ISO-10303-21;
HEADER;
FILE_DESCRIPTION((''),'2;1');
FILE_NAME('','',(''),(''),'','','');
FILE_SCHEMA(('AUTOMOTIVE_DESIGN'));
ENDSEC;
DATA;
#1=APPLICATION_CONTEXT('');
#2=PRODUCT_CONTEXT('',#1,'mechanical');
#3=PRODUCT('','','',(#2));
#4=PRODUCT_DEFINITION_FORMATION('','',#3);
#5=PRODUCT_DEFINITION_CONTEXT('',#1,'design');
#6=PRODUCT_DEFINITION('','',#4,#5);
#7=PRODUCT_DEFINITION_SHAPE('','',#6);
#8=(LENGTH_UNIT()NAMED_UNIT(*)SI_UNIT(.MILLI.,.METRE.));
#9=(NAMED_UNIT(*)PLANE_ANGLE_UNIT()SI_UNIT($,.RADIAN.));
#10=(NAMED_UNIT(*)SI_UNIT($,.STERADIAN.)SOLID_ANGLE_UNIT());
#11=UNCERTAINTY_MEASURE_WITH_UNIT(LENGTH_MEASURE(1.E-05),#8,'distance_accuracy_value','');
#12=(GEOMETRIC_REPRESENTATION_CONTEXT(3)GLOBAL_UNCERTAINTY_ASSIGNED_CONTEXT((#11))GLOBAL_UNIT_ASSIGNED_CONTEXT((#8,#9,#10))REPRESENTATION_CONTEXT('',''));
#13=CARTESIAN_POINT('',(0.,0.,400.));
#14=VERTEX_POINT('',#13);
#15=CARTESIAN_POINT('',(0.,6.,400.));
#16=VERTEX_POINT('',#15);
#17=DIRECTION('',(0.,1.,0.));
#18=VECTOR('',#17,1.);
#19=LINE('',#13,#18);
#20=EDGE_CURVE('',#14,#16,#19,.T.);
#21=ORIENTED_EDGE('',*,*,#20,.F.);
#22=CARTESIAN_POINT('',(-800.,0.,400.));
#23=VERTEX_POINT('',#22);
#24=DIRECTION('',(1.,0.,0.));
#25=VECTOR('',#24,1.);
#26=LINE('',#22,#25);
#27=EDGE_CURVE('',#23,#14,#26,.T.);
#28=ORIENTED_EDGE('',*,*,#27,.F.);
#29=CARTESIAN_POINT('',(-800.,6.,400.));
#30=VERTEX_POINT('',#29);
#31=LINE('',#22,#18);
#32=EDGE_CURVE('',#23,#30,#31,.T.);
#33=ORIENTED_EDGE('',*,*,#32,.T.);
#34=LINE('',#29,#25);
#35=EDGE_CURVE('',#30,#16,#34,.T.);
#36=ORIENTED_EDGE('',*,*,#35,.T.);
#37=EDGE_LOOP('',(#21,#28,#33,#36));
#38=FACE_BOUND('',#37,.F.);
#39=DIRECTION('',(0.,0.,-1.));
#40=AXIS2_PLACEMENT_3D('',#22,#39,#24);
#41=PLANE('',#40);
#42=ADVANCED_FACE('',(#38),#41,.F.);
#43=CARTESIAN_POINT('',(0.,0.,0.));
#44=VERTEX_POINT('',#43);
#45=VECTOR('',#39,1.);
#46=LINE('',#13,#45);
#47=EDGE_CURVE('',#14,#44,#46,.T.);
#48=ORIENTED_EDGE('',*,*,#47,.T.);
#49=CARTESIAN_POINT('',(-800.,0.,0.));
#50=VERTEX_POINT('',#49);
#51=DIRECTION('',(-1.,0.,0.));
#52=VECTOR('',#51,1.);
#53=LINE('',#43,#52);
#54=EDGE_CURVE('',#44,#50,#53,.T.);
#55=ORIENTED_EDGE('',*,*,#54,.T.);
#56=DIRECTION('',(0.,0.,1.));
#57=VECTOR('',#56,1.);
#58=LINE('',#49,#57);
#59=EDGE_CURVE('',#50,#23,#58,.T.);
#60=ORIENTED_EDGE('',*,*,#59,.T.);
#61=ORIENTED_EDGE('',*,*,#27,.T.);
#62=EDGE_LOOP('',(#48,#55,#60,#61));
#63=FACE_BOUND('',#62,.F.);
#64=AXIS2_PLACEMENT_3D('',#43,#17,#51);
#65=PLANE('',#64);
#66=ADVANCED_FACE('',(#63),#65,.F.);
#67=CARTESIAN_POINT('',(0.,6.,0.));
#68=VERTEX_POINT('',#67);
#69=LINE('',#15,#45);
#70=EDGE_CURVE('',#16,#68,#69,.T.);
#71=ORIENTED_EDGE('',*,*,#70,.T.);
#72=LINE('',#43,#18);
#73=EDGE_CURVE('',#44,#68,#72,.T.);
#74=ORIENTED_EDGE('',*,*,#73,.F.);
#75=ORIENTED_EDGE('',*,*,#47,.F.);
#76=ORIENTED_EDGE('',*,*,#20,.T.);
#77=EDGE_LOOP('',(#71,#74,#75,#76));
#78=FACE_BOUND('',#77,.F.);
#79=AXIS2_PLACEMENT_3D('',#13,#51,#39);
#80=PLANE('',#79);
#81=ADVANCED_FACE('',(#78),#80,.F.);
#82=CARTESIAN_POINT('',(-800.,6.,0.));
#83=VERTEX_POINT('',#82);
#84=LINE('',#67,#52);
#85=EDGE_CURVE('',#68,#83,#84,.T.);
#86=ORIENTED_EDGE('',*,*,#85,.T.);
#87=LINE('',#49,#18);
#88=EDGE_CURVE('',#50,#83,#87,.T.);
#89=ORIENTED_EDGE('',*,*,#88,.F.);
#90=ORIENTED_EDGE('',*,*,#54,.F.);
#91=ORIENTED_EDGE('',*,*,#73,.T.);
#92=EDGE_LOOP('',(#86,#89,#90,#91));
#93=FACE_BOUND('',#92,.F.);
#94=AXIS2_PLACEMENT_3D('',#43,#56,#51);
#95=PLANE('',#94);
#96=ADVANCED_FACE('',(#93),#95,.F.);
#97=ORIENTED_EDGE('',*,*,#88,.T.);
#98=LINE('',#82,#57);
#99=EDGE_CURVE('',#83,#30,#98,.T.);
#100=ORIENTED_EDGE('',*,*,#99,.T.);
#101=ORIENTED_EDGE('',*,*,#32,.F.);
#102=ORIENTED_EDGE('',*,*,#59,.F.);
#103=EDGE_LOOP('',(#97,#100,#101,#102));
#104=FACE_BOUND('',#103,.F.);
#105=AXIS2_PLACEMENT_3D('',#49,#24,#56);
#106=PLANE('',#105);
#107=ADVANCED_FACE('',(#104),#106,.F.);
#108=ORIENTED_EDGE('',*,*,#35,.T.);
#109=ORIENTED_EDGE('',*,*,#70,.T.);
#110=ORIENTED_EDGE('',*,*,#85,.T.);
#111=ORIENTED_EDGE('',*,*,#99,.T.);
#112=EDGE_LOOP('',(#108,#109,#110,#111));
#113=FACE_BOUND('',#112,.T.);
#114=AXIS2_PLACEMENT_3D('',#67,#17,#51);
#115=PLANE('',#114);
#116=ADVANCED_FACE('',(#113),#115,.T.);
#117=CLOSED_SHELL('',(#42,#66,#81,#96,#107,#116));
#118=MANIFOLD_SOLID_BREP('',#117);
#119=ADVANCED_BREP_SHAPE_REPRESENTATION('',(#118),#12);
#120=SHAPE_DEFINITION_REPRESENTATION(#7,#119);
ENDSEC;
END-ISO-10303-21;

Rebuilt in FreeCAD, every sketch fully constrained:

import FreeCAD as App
import Part
import Sketcher

V = App.Vector
Q = App.Units.Quantity

doc = App.newDocument("Part")
params = doc.addObject("Spreadsheet::Sheet", "Params")
for row, (alias, value) in enumerate([
    ("sketch1_width", "800 mm"),
    ("sketch1_height", "400 mm"),
    ("pad1_length", "6 mm"),
], start=1):
    params.set(f"A{row}", alias)
    params.set(f"B{row}", "=" + value)
    params.setAlias(f"B{row}", alias)

body = doc.addObject("PartDesign::Body", "Body")

sketch1 = body.newObject("Sketcher::SketchObject", "Sketch")
sketch1.AttachmentSupport = (doc.getObject("XZ_Plane"), [""])
sketch1.MapMode = "FlatFace"
sketch1.addGeometry([
    Part.LineSegment(V(0, 400, 0), V(0, 0, 0)),
    Part.LineSegment(V(0, 0, 0), V(-800, 0, 0)),
    Part.LineSegment(V(-800, 0, 0), V(-800, 400, 0)),
    Part.LineSegment(V(-800, 400, 0), V(0, 400, 0)),
], False)
sketch1.addConstraint([
    Sketcher.Constraint("Coincident", 0, 2, 1, 1),
    Sketcher.Constraint("Coincident", 1, 2, 2, 1),
    Sketcher.Constraint("Coincident", 2, 2, 3, 1),
    Sketcher.Constraint("Coincident", 3, 2, 0, 1),
    Sketcher.Constraint("Vertical", 0),
    Sketcher.Constraint("Horizontal", 1),
    Sketcher.Constraint("Vertical", 2),
    Sketcher.Constraint("Horizontal", 3),
    Sketcher.Constraint("Coincident", 0, 2, -1, 1),
    Sketcher.Constraint("DistanceX", 1, 2, 1, 1, Q("800 mm")),
    Sketcher.Constraint("DistanceY", 0, 2, 0, 1, Q("400 mm")),
])
sketch1.setExpression("Constraints[9]", "Params.sketch1_width")
sketch1.setExpression("Constraints[10]", "Params.sketch1_height")
pad1 = body.newObject("PartDesign::Pad", "Pad")
pad1.Profile = sketch1
pad1.setExpression("Length", "Params.pad1_length")
pad1.Reversed = True

doc.recompute()
